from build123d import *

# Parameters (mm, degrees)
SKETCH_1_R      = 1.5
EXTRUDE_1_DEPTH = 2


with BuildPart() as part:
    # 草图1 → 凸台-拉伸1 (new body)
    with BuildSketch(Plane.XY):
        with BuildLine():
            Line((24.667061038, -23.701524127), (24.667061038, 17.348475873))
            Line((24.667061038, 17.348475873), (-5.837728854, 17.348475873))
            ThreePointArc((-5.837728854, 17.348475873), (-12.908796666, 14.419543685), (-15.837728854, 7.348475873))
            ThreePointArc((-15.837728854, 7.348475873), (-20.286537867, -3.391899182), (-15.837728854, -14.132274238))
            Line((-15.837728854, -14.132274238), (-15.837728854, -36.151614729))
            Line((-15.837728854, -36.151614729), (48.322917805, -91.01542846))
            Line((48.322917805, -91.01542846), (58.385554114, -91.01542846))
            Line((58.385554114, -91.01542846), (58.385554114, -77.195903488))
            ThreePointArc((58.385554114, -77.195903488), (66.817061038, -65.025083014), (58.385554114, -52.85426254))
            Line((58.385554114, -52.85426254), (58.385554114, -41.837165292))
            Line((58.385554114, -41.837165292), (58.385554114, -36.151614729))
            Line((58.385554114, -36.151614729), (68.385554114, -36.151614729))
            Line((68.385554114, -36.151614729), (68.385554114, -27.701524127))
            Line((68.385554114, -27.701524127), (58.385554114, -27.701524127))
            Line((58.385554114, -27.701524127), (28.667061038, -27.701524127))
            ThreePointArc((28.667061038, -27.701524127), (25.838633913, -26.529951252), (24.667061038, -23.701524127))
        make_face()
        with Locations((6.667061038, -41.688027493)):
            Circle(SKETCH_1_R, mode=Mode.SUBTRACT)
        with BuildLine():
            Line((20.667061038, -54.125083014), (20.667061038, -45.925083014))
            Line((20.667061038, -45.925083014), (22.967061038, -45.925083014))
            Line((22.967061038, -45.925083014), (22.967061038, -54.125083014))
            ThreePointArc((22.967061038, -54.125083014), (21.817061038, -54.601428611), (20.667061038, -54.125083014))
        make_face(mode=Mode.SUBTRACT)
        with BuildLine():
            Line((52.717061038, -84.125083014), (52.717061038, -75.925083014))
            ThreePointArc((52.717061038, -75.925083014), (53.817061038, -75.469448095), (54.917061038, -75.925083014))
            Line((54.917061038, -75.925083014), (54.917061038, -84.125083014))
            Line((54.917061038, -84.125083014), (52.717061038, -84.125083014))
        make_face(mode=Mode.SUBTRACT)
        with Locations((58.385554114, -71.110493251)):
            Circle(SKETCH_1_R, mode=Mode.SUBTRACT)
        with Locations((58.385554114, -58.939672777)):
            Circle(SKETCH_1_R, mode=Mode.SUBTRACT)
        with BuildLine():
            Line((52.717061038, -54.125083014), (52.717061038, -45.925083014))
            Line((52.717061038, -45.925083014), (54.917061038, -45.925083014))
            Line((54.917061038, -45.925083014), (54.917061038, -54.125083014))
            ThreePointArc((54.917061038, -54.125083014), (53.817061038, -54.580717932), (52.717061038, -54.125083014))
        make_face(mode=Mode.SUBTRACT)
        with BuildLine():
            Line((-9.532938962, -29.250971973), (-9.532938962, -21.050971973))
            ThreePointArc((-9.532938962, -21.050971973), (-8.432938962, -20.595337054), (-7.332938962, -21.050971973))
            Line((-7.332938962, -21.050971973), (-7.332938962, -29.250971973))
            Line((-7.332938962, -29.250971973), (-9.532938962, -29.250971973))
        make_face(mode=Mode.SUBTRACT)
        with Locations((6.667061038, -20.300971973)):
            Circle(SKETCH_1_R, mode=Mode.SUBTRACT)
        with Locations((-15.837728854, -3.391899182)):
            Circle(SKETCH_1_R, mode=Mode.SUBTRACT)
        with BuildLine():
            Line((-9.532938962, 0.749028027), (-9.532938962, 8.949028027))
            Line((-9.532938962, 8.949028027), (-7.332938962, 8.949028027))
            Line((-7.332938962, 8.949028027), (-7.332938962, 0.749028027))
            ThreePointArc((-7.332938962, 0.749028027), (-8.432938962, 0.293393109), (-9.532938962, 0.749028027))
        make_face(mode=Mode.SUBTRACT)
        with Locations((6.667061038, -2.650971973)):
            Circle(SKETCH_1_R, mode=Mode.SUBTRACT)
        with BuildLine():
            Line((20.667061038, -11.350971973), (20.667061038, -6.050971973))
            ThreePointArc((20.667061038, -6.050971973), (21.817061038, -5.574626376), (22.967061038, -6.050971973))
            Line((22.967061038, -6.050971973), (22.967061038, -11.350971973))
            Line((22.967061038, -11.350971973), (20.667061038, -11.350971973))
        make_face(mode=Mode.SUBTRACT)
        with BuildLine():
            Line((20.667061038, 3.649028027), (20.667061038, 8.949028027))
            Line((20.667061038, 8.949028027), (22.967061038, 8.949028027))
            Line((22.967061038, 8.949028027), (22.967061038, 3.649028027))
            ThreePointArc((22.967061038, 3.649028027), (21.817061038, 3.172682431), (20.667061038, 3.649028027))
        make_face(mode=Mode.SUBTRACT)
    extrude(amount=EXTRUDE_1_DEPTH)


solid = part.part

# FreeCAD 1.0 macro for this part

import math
import FreeCAD as App
import Part
import Sketcher
from FreeCAD import Vector
Q = App.Units.Quantity

doc = App.newDocument("Part")
body = doc.addObject("PartDesign::Body", "Body")

# Sketch on XY plane
sketch1 = body.newObject("Sketcher::SketchObject", "Sketch")
sketch1.AttachmentSupport = (doc.getObject("XY_Plane"), [""])
sketch1.MapMode = "FlatFace"
sketch1.addGeometry(Part.LineSegment(Vector(24.7, -23.7, 0), Vector(24.7, 17.3, 0)), False)
sketch1.addGeometry(Part.LineSegment(Vector(24.7, 17.3, 0), Vector(-5.8, 17.3, 0)), False)
sketch1.addGeometry(Part.ArcOfCircle(Part.Circle(Vector(-5.8, 7.3, 0), Vector(0, 0, 1), 10), math.radians(90), math.radians(180)), False)
sketch1.addGeometry(Part.ArcOfCircle(Part.Circle(Vector(-5.1, -3.4, 0), Vector(0, 0, 1), 15.2), math.radians(135), math.radians(225)), False)
sketch1.addGeometry(Part.LineSegment(Vector(-15.8, -14.1, 0), Vector(-15.8, -36.2, 0)), False)
sketch1.addGeometry(Part.LineSegment(Vector(-15.8, -36.2, 0), Vector(48.3, -91, 0)), False)
sketch1.addGeometry(Part.LineSegment(Vector(48.3, -91, 0), Vector(58.4, -91, 0)), False)
sketch1.addGeometry(Part.LineSegment(Vector(58.4, -91, 0), Vector(58.4, -77.2, 0)), False)
sketch1.addGeometry(Part.ArcOfCircle(Part.Circle(Vector(53.8, -65, 0), Vector(0, 0, 1), 13), math.radians(-69), math.radians(69)), False)
sketch1.addGeometry(Part.LineSegment(Vector(58.4, -52.9, 0), Vector(58.4, -36.2, 0)), False)
sketch1.addGeometry(Part.LineSegment(Vector(58.4, -36.2, 0), Vector(68.4, -36.2, 0)), False)
sketch1.addGeometry(Part.LineSegment(Vector(68.4, -36.2, 0), Vector(68.4, -27.7, 0)), False)
sketch1.addGeometry(Part.LineSegment(Vector(68.4, -27.7, 0), Vector(28.7, -27.7, 0)), False)
sketch1.addGeometry(Part.ArcOfCircle(Part.Circle(Vector(28.7, -23.7, 0), Vector(0, 0, 1), 4), math.radians(180), math.radians(270)), False)
sketch1.addGeometry(Part.Circle(Vector(6.7, -41.7, 0), Vector(0, 0, 1), 1.5), False)
sketch1.addGeometry(Part.LineSegment(Vector(54.9, -84.1, 0), Vector(52.7, -84.1, 0)), False)
sketch1.addGeometry(Part.LineSegment(Vector(52.7, -84.1, 0), Vector(52.7, -75.9, 0)), False)
sketch1.addGeometry(Part.ArcOfCircle(Part.Circle(Vector(53.8, -77, 0), Vector(0, 0, 1), 1.6), math.radians(45), math.radians(135)), False)
sketch1.addGeometry(Part.LineSegment(Vector(54.9, -75.9, 0), Vector(54.9, -84.1, 0)), False)
sketch1.addGeometry(Part.Circle(Vector(58.4, -71.1, 0), Vector(0, 0, 1), 1.5), False)
sketch1.addGeometry(Part.ArcOfCircle(Part.Circle(Vector(21.8, -53, 0), Vector(0, 0, 1), 1.6), math.radians(-135), math.radians(-45)), False)
sketch1.addGeometry(Part.LineSegment(Vector(20.7, -54.1, 0), Vector(20.7, -45.9, 0)), False)
sketch1.addGeometry(Part.LineSegment(Vector(20.7, -45.9, 0), Vector(23, -45.9, 0)), False)
sketch1.addGeometry(Part.LineSegment(Vector(23, -45.9, 0), Vector(23, -54.1, 0)), False)
sketch1.addGeometry(Part.Circle(Vector(58.4, -58.9, 0), Vector(0, 0, 1), 1.5), False)
sketch1.addGeometry(Part.ArcOfCircle(Part.Circle(Vector(53.8, -53, 0), Vector(0, 0, 1), 1.6), math.radians(-135), math.radians(-45)), False)
sketch1.addGeometry(Part.LineSegment(Vector(52.7, -54.1, 0), Vector(52.7, -45.9, 0)), False)
sketch1.addGeometry(Part.LineSegment(Vector(52.7, -45.9, 0), Vector(54.9, -45.9, 0)), False)
sketch1.addGeometry(Part.LineSegment(Vector(54.9, -45.9, 0), Vector(54.9, -54.1, 0)), False)
sketch1.addGeometry(Part.LineSegment(Vector(-7.3, -29.3, 0), Vector(-9.5, -29.3, 0)), False)
sketch1.addGeometry(Part.LineSegment(Vector(-9.5, -29.3, 0), Vector(-9.5, -21.1, 0)), False)
sketch1.addGeometry(Part.ArcOfCircle(Part.Circle(Vector(-8.4, -22.2, 0), Vector(0, 0, 1), 1.6), math.radians(45), math.radians(135)), False)
sketch1.addGeometry(Part.LineSegment(Vector(-7.3, -21.1, 0), Vector(-7.3, -29.3, 0)), False)
sketch1.addGeometry(Part.Circle(Vector(6.7, -20.3, 0), Vector(0, 0, 1), 1.5), False)
sketch1.addGeometry(Part.Circle(Vector(-15.8, -3.4, 0), Vector(0, 0, 1), 1.5), False)
sketch1.addGeometry(Part.ArcOfCircle(Part.Circle(Vector(-8.4, 1.8, 0), Vector(0, 0, 1), 1.6), math.radians(-135), math.radians(-45)), False)
sketch1.addGeometry(Part.LineSegment(Vector(-9.5, 0.7, 0), Vector(-9.5, 8.9, 0)), False)
sketch1.addGeometry(Part.LineSegment(Vector(-9.5, 8.9, 0), Vector(-7.3, 8.9, 0)), False)
sketch1.addGeometry(Part.LineSegment(Vector(-7.3, 8.9, 0), Vector(-7.3, 0.7, 0)), False)
sketch1.addGeometry(Part.Circle(Vector(6.7, -2.7, 0), Vector(0, 0, 1), 1.5), False)
sketch1.addGeometry(Part.LineSegment(Vector(23, -11.4, 0), Vector(20.7, -11.4, 0)), False)
sketch1.addGeometry(Part.LineSegment(Vector(20.7, -11.4, 0), Vector(20.7, -6.1, 0)), False)
sketch1.addGeometry(Part.ArcOfCircle(Part.Circle(Vector(21.8, -7.2, 0), Vector(0, 0, 1), 1.6), math.radians(45), math.radians(135)), False)
sketch1.addGeometry(Part.LineSegment(Vector(23, -6.1, 0), Vector(23, -11.4, 0)), False)
sketch1.addGeometry(Part.ArcOfCircle(Part.Circle(Vector(21.8, 4.8, 0), Vector(0, 0, 1), 1.6), math.radians(-135), math.radians(-45)), False)
sketch1.addGeometry(Part.LineSegment(Vector(20.7, 3.6, 0), Vector(20.7, 8.9, 0)), False)
sketch1.addGeometry(Part.LineSegment(Vector(20.7, 8.9, 0), Vector(23, 8.9, 0)), False)
sketch1.addGeometry(Part.LineSegment(Vector(23, 8.9, 0), Vector(23, 3.6, 0)), False)
sketch1.addConstraint(Sketcher.Constraint("Coincident", 0, 2, 1, 1))
sketch1.addConstraint(Sketcher.Constraint("Tangent", 1, 2, 2, 1))
sketch1.addConstraint(Sketcher.Constraint("Coincident", 2, 2, 3, 1))
sketch1.addConstraint(Sketcher.Constraint("Coincident", 3, 2, 4, 1))
sketch1.addConstraint(Sketcher.Constraint("Coincident", 4, 2, 5, 1))
sketch1.addConstraint(Sketcher.Constraint("Coincident", 5, 2, 6, 1))
sketch1.addConstraint(Sketcher.Constraint("Coincident", 6, 2, 7, 1))
sketch1.addConstraint(Sketcher.Constraint("Coincident", 7, 2, 8, 1))
sketch1.addConstraint(Sketcher.Constraint("Coincident", 8, 2, 9, 1))
sketch1.addConstraint(Sketcher.Constraint("Coincident", 9, 2, 10, 1))
sketch1.addConstraint(Sketcher.Constraint("Coincident", 10, 2, 11, 1))
sketch1.addConstraint(Sketcher.Constraint("Coincident", 11, 2, 12, 1))
sketch1.addConstraint(Sketcher.Constraint("Tangent", 12, 2, 13, 2))
sketch1.addConstraint(Sketcher.Constraint("Tangent", 13, 1, 0, 1))
sketch1.addConstraint(Sketcher.Constraint("Coincident", 15, 2, 16, 1))
sketch1.addConstraint(Sketcher.Constraint("Coincident", 16, 2, 17, 2))
sketch1.addConstraint(Sketcher.Constraint("Coincident", 17, 1, 18, 1))
sketch1.addConstraint(Sketcher.Constraint("Coincident", 18, 2, 15, 1))
sketch1.addConstraint(Sketcher.Constraint("Coincident", 20, 1, 21, 1))
sketch1.addConstraint(Sketcher.Constraint("Coincident", 21, 2, 22, 1))
sketch1.addConstraint(Sketcher.Constraint("Coincident", 22, 2, 23, 1))
sketch1.addConstraint(Sketcher.Constraint("Coincident", 23, 2, 20, 2))
sketch1.addConstraint(Sketcher.Constraint("Coincident", 25, 1, 26, 1))
sketch1.addConstraint(Sketcher.Constraint("Coincident", 26, 2, 27, 1))
sketch1.addConstraint(Sketcher.Constraint("Coincident", 27, 2, 28, 1))
sketch1.addConstraint(Sketcher.Constraint("Coincident", 28, 2, 25, 2))
sketch1.addConstraint(Sketcher.Constraint("Coincident", 29, 2, 30, 1))
sketch1.addConstraint(Sketcher.Constraint("Coincident", 30, 2, 31, 2))
sketch1.addConstraint(Sketcher.Constraint("Coincident", 31, 1, 32, 1))
sketch1.addConstraint(Sketcher.Constraint("Coincident", 32, 2, 29, 1))
sketch1.addConstraint(Sketcher.Constraint("Coincident", 35, 1, 36, 1))
sketch1.addConstraint(Sketcher.Constraint("Coincident", 36, 2, 37, 1))
sketch1.addConstraint(Sketcher.Constraint("Coincident", 37, 2, 38, 1))
sketch1.addConstraint(Sketcher.Constraint("Coincident", 38, 2, 35, 2))
sketch1.addConstraint(Sketcher.Constraint("Coincident", 40, 2, 41, 1))
sketch1.addConstraint(Sketcher.Constraint("Coincident", 41, 2, 42, 2))
sketch1.addConstraint(Sketcher.Constraint("Coincident", 42, 1, 43, 1))
sketch1.addConstraint(Sketcher.Constraint("Coincident", 43, 2, 40, 1))
sketch1.addConstraint(Sketcher.Constraint("Coincident", 44, 1, 45, 1))
sketch1.addConstraint(Sketcher.Constraint("Coincident", 45, 2, 46, 1))
sketch1.addConstraint(Sketcher.Constraint("Coincident", 46, 2, 47, 1))
sketch1.addConstraint(Sketcher.Constraint("Coincident", 47, 2, 44, 2))
sketch1.addConstraint(Sketcher.Constraint("Vertical", 0))
sketch1.addConstraint(Sketcher.Constraint("Horizontal", 1))
sketch1.addConstraint(Sketcher.Constraint("Vertical", 4))
sketch1.addConstraint(Sketcher.Constraint("Horizontal", 6))
sketch1.addConstraint(Sketcher.Constraint("Vertical", 7))
sketch1.addConstraint(Sketcher.Constraint("Vertical", 9))
sketch1.addConstraint(Sketcher.Constraint("Horizontal", 10))
sketch1.addConstraint(Sketcher.Constraint("Vertical", 11))
sketch1.addConstraint(Sketcher.Constraint("Horizontal", 12))
sketch1.addConstraint(Sketcher.Constraint("Horizontal", 15))
sketch1.addConstraint(Sketcher.Constraint("Vertical", 16))
sketch1.addConstraint(Sketcher.Constraint("Vertical", 18))
sketch1.addConstraint(Sketcher.Constraint("Vertical", 21))
sketch1.addConstraint(Sketcher.Constraint("Horizontal", 22))
sketch1.addConstraint(Sketcher.Constraint("Vertical", 23))
sketch1.addConstraint(Sketcher.Constraint("Vertical", 26))
sketch1.addConstraint(Sketcher.Constraint("Horizontal", 27))
sketch1.addConstraint(Sketcher.Constraint("Vertical", 28))
sketch1.addConstraint(Sketcher.Constraint("Horizontal", 29))
sketch1.addConstraint(Sketcher.Constraint("Vertical", 30))
sketch1.addConstraint(Sketcher.Constraint("Vertical", 32))
sketch1.addConstraint(Sketcher.Constraint("Vertical", 36))
sketch1.addConstraint(Sketcher.Constraint("Horizontal", 37))
sketch1.addConstraint(Sketcher.Constraint("Vertical", 38))
sketch1.addConstraint(Sketcher.Constraint("Horizontal", 40))
sketch1.addConstraint(Sketcher.Constraint("Vertical", 41))
sketch1.addConstraint(Sketcher.Constraint("Vertical", 43))
sketch1.addConstraint(Sketcher.Constraint("Vertical", 45))
sketch1.addConstraint(Sketcher.Constraint("Horizontal", 46))
sketch1.addConstraint(Sketcher.Constraint("Vertical", 47))
sketch1.addConstraint(Sketcher.Constraint("Equal", 14, 19))
sketch1.addConstraint(Sketcher.Constraint("Equal", 19, 24))
sketch1.addConstraint(Sketcher.Constraint("Equal", 17, 25))
sketch1.addConstraint(Sketcher.Constraint("Equal", 25, 31))
sketch1.addConstraint(Sketcher.Constraint("Equal", 24, 33))
sketch1.addConstraint(Sketcher.Constraint("Equal", 33, 34))
sketch1.addConstraint(Sketcher.Constraint("Equal", 31, 35))
sketch1.addConstraint(Sketcher.Constraint("Equal", 34, 39))
sketch1.addConstraint(Sketcher.Constraint("Equal", 20, 42))
sketch1.addConstraint(Sketcher.Constraint("Equal", 42, 44))
sketch1.addConstraint(Sketcher.Constraint("Horizontal", 3, 3, 34, 3))
sketch1.addConstraint(Sketcher.Constraint("Horizontal", 4, 2, 9, 2))
sketch1.addConstraint(Sketcher.Constraint("Horizontal", 16, 2, 17, 1))
sketch1.addConstraint(Sketcher.Constraint("Horizontal", 20, 1, 23, 2))
sketch1.addConstraint(Sketcher.Constraint("Horizontal", 23, 2, 25, 1))
sketch1.addConstraint(Sketcher.Constraint("Horizontal", 22, 2, 26, 2))
sketch1.addConstraint(Sketcher.Constraint("Horizontal", 25, 1, 28, 2))
sketch1.addConstraint(Sketcher.Constraint("Horizontal", 30, 2, 31, 1))
sketch1.addConstraint(Sketcher.Constraint("Horizontal", 35, 1, 38, 2))
sketch1.addConstraint(Sketcher.Constraint("Horizontal", 41, 2, 42, 1))
sketch1.addConstraint(Sketcher.Constraint("Horizontal", 37, 2, 45, 2))
sketch1.addConstraint(Sketcher.Constraint("Horizontal", 44, 1, 47, 2))
sketch1.addConstraint(Sketcher.Constraint("Vertical", 8, 3, 17, 3))
sketch1.addConstraint(Sketcher.Constraint("Vertical", 19, 3, 24, 3))
sketch1.addConstraint(Sketcher.Constraint("Vertical", 17, 3, 25, 3))
sketch1.addConstraint(Sketcher.Constraint("Vertical", 14, 3, 33, 3))
sketch1.addConstraint(Sketcher.Constraint("Vertical", 31, 3, 35, 3))
sketch1.addConstraint(Sketcher.Constraint("Vertical", 33, 3, 39, 3))
sketch1.addConstraint(Sketcher.Constraint("Vertical", 20, 3, 42, 3))
sketch1.addConstraint(Sketcher.Constraint("Vertical", 42, 3, 44, 3))
sketch1.addConstraint(Sketcher.Constraint("Vertical", 34, 3, 2, 2))
sketch1.addConstraint(Sketcher.Constraint("Vertical", 2, 2, 3, 2))
sketch1.addConstraint(Sketcher.Constraint("Vertical", 24, 3, 6, 2))
sketch1.addConstraint(Sketcher.Constraint("Vertical", 7, 2, 8, 2))
sketch1.addConstraint(Sketcher.Constraint("Vertical", 16, 2, 25, 1))
sketch1.addConstraint(Sketcher.Constraint("Vertical", 30, 2, 35, 1))
sketch1.addConstraint(Sketcher.Constraint("Vertical", 21, 2, 40, 2))
sketch1.addConstraint(Sketcher.Constraint("Vertical", 41, 2, 44, 1))
sketch1.addConstraint(Sketcher.Constraint("Equal", 27, 29))
sketch1.addConstraint(Sketcher.Constraint("Equal", 18, 21))
sketch1.addConstraint(Sketcher.Constraint("Equal", 28, 30))
sketch1.addConstraint(Sketcher.Constraint("Equal", 32, 36))
sketch1.addConstraint(Sketcher.Constraint("Equal", 43, 45))
sketch1.addConstraint(Sketcher.Constraint("Diameter", 14, Q("3 mm")))
sketch1.addConstraint(Sketcher.Constraint("Radius", 2, Q("10 mm")))
sketch1.addConstraint(Sketcher.Constraint("Radius", 8, Q("13 mm")))
sketch1.addConstraint(Sketcher.Constraint("Radius", 13, Q("4 mm")))
sketch1.addConstraint(Sketcher.Constraint("DistanceX", 10, 1, 10, 2, Q("10 mm")))
sketch1.addConstraint(Sketcher.Constraint("DistanceX", 15, 2, 15, 1, Q("2.2 mm")))
sketch1.addConstraint(Sketcher.Constraint("DistanceX", 22, 1, 22, 2, Q("2.3 mm")))
sketch1.addConstraint(Sketcher.Constraint("DistanceY", 16, 1, 16, 2, Q("8.2 mm")))
sketch1.addConstraint(Sketcher.Constraint("DistanceY", 41, 1, 41, 2, Q("5.3 mm")))
sketch1.addConstraint(Sketcher.Constraint("DistanceX", 14, 3, 13, 3, Q("22 mm")))
sketch1.addConstraint(Sketcher.Constraint("DistanceY", 17, 3, 8, 3, Q("12 mm")))
sketch1.addConstraint(Sketcher.Constraint("DistanceX", 20, 3, 8, 3, Q("32 mm")))
sketch1.addConstraint(Sketcher.Constraint("DistanceY", 8, 3, 25, 3, Q("12 mm")))
sketch1.addConstraint(Sketcher.Constraint("DistanceY", 31, 3, 35, 3, Q("24 mm")))
sketch1.addConstraint(Sketcher.Constraint("DistanceY", 42, 3, 44, 3, Q("12 mm")))
sketch1.addConstraint(Sketcher.Constraint("DistanceY", 2, 2, 1, 2, Q("10 mm")))
sketch1.addConstraint(Sketcher.Constraint("DistanceX", 14, 3, 20, 1, Q("14 mm")))
sketch1.addConstraint(Sketcher.Constraint("DistanceX", 31, 1, 33, 3, Q("14 mm")))
sketch1.addConstraint(Sketcher.Constraint("DistanceY", 41, 2, 45, 2, Q("15 mm")))
sketch1.addConstraint(Sketcher.Constraint("DistanceY", 0, 1, 0, 2, Q("41.05 mm")))
sketch1.addConstraint(Sketcher.Constraint("DistanceY", 39, 3, 35, 3, Q("4.5 mm")))
sketch1.addConstraint(Sketcher.Constraint("DistanceY", 33, 3, 42, 3, Q("13.1 mm")))
sketch1.addConstraint(Sketcher.Constraint("DistanceY", 15, 2, 17, 3, Q("7.1 mm")))
sketch1.addConstraint(Sketcher.Constraint("Radius", 3, Q("15.189184 mm")))
sketch1.addConstraint(Sketcher.Constraint("DistanceX", 1, 2, 1, 1, Q("30.50479 mm")))
sketch1.addConstraint(Sketcher.Constraint("DistanceY", 4, 2, 4, 1, Q("22.01934 mm")))
sketch1.addConstraint(Sketcher.Constraint("DistanceY", 11, 1, 11, 2, Q("8.450091 mm")))
sketch1.addConstraint(Sketcher.Constraint("DistanceY", 3, 3, -1, 1, Q("3.391899 mm")))
sketch1.addConstraint(Sketcher.Constraint("Distance", 5, Q("84.41935 mm")))
sketch1.addConstraint(Sketcher.Constraint("DistanceX", 6, 1, 6, 2, Q("10.062636 mm")))
sketch1.addConstraint(Sketcher.Constraint("DistanceX", 12, 2, 12, 1, Q("39.718493 mm")))
sketch1.addConstraint(Sketcher.Constraint("DistanceY", 7, 1, 7, 2, Q("13.819525 mm")))
sketch1.addConstraint(Sketcher.Constraint("DistanceX", 2, 3, -1, 1, Q("5.837729 mm")))
sketch1.addConstraint(Sketcher.Constraint("DistanceY", 31, 3, -1, 1, Q("22.150972 mm")))
sketch1.addConstraint(Sketcher.Constraint("DistanceY", 14, 3, 3, 3, Q("38.296128 mm")))
sketch1.addConstraint(Sketcher.Constraint("DistanceY", 17, 3, 19, 3, Q("5.91459 mm")))
sketch1.addConstraint(Sketcher.Constraint("DistanceY", 8, 3, 24, 3, Q("6.08541 mm")))
pad1 = body.newObject("PartDesign::Pad", "Pad")
pad1.Profile = sketch1
pad1.Length = 2

doc.recompute()
